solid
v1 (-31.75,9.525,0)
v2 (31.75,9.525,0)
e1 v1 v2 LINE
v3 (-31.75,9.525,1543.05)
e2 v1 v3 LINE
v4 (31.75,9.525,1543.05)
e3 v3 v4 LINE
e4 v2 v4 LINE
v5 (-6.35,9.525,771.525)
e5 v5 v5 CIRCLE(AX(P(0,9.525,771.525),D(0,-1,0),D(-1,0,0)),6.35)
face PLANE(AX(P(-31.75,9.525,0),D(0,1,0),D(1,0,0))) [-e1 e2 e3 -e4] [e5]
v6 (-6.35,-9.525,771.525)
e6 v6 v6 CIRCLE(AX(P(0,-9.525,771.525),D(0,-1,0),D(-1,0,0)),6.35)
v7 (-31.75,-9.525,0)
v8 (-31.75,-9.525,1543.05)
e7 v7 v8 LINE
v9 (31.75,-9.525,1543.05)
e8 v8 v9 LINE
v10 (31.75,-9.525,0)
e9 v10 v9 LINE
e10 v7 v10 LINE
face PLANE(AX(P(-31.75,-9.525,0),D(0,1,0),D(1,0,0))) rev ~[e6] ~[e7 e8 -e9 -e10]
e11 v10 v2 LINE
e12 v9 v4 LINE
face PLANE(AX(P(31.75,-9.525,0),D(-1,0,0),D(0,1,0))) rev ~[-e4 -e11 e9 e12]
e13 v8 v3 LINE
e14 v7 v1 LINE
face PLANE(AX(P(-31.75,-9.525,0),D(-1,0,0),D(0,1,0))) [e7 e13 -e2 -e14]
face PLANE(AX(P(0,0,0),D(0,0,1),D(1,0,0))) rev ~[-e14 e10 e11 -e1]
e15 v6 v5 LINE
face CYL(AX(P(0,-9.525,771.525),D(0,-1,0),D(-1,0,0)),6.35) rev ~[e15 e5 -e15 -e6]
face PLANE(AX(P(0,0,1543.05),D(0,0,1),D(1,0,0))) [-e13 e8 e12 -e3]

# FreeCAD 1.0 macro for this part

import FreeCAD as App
import Part
import Sketcher
Q = App.Units.Quantity

doc = App.newDocument("Part")
params = doc.addObject("Spreadsheet::Sheet", "Params")
for row, (alias, value) in enumerate([
    ("sketch1_width", "2.5 in"),
    ("sketch1_height", "0.75 in"),
    ("pad1_length", "60.75 in"),
    ("sketch2_diameter", "0.5 in"),
    ("pocket1_length", "1 in"),
], start=1):
    params.set(f"A{row}", alias)
    params.set(f"B{row}", "=" + value)
    params.setAlias(f"B{row}", alias)

body = doc.addObject("PartDesign::Body", "Body")

# Sketch on XY plane
sketch1 = doc.addObject("Sketcher::SketchObject", "Sketch")
body.addObject(sketch1)
sketch1.AttachmentSupport = (doc.XY_Plane, [""])
sketch1.MapMode = "FlatFace"
sketch1.addGeometry(Part.LineSegment(App.Vector(-31.75, 9.525, 0), App.Vector(-31.75, -9.525, 0)), False)
sketch1.addGeometry(Part.LineSegment(App.Vector(-31.75, -9.525, 0), App.Vector(31.75, -9.525, 0)), False)
sketch1.addGeometry(Part.LineSegment(App.Vector(31.75, -9.525, 0), App.Vector(31.75, 9.525, 0)), False)
sketch1.addGeometry(Part.LineSegment(App.Vector(31.75, 9.525, 0), App.Vector(-31.75, 9.525, 0)), False)
sketch1.addConstraint(Sketcher.Constraint("Coincident", 0, 2, 1, 1))
sketch1.addConstraint(Sketcher.Constraint("Coincident", 1, 2, 2, 1))
sketch1.addConstraint(Sketcher.Constraint("Coincident", 2, 2, 3, 1))
sketch1.addConstraint(Sketcher.Constraint("Coincident", 3, 2, 0, 1))
sketch1.addConstraint(Sketcher.Constraint("Vertical", 0))
sketch1.addConstraint(Sketcher.Constraint("Horizontal", 1))
sketch1.addConstraint(Sketcher.Constraint("Vertical", 2))
sketch1.addConstraint(Sketcher.Constraint("Horizontal", 3))
sketch1.addConstraint(Sketcher.Constraint("Symmetric", 0, 2, 2, 2, -1, 1))
sketch1.addConstraint(Sketcher.Constraint("DistanceX", 1, 1, 1, 2, Q("2.5 in")))
sketch1.addConstraint(Sketcher.Constraint("DistanceY", 0, 2, 0, 1, Q("0.75 in")))
sketch1.setExpression("Constraints[9]", "Params.sketch1_width")
sketch1.setExpression("Constraints[10]", "Params.sketch1_height")
pad1 = doc.addObject("PartDesign::Pad", "Pad")
body.addObject(pad1)
pad1.Profile = sketch1
pad1.setExpression("Length", "Params.pad1_length")

# Sketch on XZ plane
sketch2 = doc.addObject("Sketcher::SketchObject", "Sketch001")
body.addObject(sketch2)
sketch2.AttachmentSupport = (doc.XZ_Plane, [""])
sketch2.MapMode = "FlatFace"
sketch2.AttachmentOffset = App.Placement(App.Vector(0, 0, 0.375 * 25.4), App.Rotation())
sketch2.addGeometry(Part.Circle(App.Vector(0, 771.525, 0), App.Vector(0, 0, 1), 6.35), False)
sketch2.addConstraint(Sketcher.Constraint("PointOnObject", 0, 3, -2))
sketch2.addConstraint(Sketcher.Constraint("Diameter", 0, Q("0.5 in")))
sketch2.addConstraint(Sketcher.Constraint("DistanceY", -1, 1, 0, 3, Q("30.375 in")))
sketch2.setExpression("Constraints[1]", "Params.sketch2_diameter")
pocket1 = doc.addObject("PartDesign::Pocket", "Pocket")
body.addObject(pocket1)
pocket1.Profile = sketch2
pocket1.setExpression("Length", "Params.pocket1_length")

doc.recompute()
